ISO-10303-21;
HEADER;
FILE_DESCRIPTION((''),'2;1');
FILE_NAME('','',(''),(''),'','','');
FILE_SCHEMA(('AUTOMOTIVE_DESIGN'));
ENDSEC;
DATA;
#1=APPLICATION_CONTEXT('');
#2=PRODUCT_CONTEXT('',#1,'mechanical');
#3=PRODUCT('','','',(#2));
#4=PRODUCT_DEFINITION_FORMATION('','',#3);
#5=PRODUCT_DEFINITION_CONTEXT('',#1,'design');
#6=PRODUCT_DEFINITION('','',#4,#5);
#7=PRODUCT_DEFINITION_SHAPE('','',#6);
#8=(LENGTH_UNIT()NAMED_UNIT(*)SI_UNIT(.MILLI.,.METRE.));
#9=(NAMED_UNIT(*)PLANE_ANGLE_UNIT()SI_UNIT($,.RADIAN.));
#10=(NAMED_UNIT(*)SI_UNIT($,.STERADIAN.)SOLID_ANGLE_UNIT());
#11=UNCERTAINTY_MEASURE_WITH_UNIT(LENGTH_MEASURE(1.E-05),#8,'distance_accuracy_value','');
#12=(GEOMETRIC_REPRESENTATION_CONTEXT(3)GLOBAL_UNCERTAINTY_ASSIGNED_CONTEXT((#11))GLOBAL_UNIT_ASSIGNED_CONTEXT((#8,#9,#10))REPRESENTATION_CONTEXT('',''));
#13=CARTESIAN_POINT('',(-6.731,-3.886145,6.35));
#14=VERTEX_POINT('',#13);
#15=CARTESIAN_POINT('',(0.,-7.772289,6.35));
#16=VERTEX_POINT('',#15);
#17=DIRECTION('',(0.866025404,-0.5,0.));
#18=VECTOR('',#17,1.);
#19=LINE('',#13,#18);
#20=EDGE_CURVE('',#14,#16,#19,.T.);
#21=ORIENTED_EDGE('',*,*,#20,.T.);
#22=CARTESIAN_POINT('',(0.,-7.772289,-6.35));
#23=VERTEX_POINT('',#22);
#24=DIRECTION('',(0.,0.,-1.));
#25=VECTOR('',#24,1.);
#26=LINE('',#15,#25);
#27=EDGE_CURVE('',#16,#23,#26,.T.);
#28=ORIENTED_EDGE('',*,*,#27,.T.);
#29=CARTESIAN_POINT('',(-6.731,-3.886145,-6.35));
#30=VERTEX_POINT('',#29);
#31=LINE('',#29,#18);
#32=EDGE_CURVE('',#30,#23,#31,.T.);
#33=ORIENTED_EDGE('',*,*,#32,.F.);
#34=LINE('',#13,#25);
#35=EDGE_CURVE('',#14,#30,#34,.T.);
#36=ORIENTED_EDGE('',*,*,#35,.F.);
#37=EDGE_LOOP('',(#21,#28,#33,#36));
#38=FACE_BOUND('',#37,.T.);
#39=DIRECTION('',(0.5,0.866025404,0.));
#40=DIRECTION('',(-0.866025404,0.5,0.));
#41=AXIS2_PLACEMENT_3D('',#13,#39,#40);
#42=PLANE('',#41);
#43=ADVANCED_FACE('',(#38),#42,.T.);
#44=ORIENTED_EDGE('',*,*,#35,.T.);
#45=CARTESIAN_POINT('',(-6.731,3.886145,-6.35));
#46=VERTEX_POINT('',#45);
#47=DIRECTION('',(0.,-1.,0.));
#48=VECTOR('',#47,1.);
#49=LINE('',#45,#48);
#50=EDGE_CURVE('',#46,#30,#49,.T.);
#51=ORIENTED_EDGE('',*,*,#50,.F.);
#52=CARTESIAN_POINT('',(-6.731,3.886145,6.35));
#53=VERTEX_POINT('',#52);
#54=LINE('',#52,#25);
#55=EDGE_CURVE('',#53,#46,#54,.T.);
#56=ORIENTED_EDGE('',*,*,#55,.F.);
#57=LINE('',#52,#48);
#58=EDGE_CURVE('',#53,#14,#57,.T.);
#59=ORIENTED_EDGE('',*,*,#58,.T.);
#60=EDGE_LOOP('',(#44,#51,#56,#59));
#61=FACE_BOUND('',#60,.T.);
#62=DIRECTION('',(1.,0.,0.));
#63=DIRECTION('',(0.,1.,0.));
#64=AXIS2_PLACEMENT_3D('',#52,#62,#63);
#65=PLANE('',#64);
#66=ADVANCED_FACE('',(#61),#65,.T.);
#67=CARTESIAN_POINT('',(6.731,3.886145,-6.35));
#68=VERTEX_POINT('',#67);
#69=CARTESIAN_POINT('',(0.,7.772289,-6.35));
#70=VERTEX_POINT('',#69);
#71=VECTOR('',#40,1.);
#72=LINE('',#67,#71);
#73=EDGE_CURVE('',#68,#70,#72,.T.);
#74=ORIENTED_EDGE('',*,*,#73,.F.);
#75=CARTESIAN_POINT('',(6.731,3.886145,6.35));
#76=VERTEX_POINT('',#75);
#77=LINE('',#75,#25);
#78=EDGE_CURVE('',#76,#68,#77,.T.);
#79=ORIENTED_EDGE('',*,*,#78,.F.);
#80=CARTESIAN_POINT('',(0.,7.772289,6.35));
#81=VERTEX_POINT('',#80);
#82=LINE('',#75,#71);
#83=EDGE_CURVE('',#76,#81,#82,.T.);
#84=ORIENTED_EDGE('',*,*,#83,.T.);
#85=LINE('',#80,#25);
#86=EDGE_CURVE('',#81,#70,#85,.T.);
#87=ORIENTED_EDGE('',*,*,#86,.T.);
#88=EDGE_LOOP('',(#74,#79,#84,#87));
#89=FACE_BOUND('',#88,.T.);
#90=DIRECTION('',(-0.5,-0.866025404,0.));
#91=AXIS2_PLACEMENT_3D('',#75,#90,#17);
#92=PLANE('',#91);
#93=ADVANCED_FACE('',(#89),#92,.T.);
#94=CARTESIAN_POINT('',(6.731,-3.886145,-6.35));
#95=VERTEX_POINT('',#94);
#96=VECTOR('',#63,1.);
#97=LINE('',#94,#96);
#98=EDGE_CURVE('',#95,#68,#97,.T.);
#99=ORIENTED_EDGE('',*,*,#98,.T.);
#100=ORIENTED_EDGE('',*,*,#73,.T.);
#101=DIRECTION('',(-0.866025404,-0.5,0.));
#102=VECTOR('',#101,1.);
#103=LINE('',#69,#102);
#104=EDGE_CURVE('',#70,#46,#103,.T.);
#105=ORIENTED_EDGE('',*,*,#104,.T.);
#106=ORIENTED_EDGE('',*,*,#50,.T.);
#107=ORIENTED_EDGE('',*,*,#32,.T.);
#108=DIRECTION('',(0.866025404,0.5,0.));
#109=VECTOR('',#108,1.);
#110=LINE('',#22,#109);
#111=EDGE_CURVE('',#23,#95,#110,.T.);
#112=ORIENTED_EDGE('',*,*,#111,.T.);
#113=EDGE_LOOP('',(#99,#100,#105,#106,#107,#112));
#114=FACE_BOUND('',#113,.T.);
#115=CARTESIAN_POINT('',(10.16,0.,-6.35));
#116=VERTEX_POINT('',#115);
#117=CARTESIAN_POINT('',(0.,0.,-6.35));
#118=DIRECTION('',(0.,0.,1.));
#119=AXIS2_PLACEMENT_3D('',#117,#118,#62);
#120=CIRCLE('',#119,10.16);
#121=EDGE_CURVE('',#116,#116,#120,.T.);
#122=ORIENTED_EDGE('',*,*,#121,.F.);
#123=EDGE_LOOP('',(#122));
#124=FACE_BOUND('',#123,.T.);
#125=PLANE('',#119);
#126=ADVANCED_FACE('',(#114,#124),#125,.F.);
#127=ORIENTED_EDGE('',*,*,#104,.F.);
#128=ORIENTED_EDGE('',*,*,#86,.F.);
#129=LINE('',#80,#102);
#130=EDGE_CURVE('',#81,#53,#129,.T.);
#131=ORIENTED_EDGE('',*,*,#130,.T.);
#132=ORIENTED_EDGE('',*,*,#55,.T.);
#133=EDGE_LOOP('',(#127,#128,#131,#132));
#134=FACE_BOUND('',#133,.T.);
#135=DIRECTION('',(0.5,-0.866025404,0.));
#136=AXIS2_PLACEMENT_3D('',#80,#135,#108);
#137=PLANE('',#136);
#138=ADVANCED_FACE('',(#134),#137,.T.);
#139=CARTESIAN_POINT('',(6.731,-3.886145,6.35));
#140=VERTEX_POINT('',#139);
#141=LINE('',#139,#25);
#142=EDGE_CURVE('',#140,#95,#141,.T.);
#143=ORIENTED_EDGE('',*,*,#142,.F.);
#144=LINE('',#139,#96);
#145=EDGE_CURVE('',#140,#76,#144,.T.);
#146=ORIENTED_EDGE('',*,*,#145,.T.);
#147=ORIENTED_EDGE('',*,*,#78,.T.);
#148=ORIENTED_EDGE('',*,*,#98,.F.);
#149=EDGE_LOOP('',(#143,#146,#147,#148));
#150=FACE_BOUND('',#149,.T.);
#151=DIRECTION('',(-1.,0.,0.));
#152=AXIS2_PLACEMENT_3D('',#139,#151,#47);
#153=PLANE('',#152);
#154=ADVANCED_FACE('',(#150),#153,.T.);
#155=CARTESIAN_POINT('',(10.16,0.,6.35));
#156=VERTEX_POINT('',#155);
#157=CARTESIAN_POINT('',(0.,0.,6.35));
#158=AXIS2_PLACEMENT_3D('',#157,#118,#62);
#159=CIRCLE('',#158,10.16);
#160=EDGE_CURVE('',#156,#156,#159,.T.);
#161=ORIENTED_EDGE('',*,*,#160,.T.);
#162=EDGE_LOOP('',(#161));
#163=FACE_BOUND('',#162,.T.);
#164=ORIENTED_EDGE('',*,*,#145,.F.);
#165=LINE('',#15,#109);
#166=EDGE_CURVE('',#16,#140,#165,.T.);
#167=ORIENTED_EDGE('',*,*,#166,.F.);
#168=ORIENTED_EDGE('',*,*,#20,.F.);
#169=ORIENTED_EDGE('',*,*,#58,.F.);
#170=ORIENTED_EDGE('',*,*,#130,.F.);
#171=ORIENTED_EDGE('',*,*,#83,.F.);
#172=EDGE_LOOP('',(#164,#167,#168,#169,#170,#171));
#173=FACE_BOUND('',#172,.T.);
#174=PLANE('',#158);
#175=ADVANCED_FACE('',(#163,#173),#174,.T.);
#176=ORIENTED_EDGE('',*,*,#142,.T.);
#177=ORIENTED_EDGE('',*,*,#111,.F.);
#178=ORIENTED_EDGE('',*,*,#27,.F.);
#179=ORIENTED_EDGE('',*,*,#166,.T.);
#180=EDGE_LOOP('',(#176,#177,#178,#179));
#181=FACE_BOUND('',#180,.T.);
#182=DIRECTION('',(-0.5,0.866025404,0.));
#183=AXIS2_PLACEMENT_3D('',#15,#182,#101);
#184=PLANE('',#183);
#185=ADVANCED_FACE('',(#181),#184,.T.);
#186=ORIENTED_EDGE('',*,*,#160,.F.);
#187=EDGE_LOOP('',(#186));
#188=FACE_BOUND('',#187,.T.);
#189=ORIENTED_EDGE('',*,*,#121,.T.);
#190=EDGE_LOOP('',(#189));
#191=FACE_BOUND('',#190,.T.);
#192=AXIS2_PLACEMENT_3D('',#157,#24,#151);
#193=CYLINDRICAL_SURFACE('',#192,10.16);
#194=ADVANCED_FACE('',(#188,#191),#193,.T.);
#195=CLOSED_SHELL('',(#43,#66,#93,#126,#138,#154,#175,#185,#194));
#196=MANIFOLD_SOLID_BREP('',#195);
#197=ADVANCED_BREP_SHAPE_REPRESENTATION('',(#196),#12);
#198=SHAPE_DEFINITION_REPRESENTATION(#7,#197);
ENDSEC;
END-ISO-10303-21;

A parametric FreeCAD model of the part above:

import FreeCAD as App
import Part
import Sketcher
from FreeCAD import Vector
Q = App.Units.Quantity

doc = App.newDocument("Part")
params = doc.addObject("Spreadsheet::Sheet", "Params")
for row, (alias, value) in enumerate([
    ("sketch1_diameter", "0.8 in"),
    ("pad1_length", "0.5 in"),
], start=1):
    params.set(f"A{row}", alias)
    params.set(f"B{row}", "=" + value)
    params.setAlias(f"B{row}", alias)

body = doc.addObject("PartDesign::Body", "Body")

# Sketch on XY plane
sketch1 = body.newObject("Sketcher::SketchObject", "Sketch")
sketch1.AttachmentSupport = (doc.getObject("XY_Plane"), [""])
sketch1.MapMode = "FlatFace"
sketch1.addGeometry([
    Part.Circle(Vector(0, 0, 0), Vector(0, 0, 1), 10),  # 0
    Part.LineSegment(Vector(-7, 4, 0), Vector(0, 8, 0)),  # 1
    Part.LineSegment(Vector(0, 8, 0), Vector(7, 4, 0)),  # 2
    Part.LineSegment(Vector(7, 4, 0), Vector(7, -4, 0)),  # 3
    Part.LineSegment(Vector(7, -4, 0), Vector(0, -8, 0)),  # 4
    Part.LineSegment(Vector(0, -8, 0), Vector(-7, -4, 0)),  # 5
    Part.LineSegment(Vector(-7, -4, 0), Vector(-7, 4, 0)),  # 6
], False)
sketch1.addConstraint([
    Sketcher.Constraint("Coincident", 1, 2, 2, 1),
    Sketcher.Constraint("Coincident", 2, 2, 3, 1),
    Sketcher.Constraint("Coincident", 3, 2, 4, 1),
    Sketcher.Constraint("Coincident", 4, 2, 5, 1),
    Sketcher.Constraint("Coincident", 5, 2, 6, 1),
    Sketcher.Constraint("Coincident", 6, 2, 1, 1),
    Sketcher.Constraint("Vertical", 3),
    Sketcher.Constraint("Vertical", 6),
    Sketcher.Constraint("Coincident", 0, 3, -1, 1),
    Sketcher.Constraint("Symmetric", 1, 2, 4, 2, -1, 1),
    Sketcher.Constraint("Symmetric", 2, 2, 5, 2, -1, 1),
    Sketcher.Constraint("PointOnObject", 1, 2, -2),
    Sketcher.Constraint("Parallel", 1, 4),
    Sketcher.Constraint("Horizontal", 3, 2, 5, 2),
    Sketcher.Constraint("Diameter", 0, Q("0.8 in")),
    Sketcher.Constraint("Angle", 1, Q("30 deg")),
    Sketcher.Constraint("DistanceX", 5, 2, 3, 2, Q("0.53 in")),
    Sketcher.Constraint("DistanceY", 3, 2, 3, 1, Q("7.772289 mm")),
])
sketch1.setExpression("Constraints[14]", "Params.sketch1_diameter")
pad1 = body.newObject("PartDesign::Pad", "Pad")
pad1.Profile = sketch1
pad1.setExpression("Length", "Params.pad1_length")
pad1.Midplane = True

doc.recompute()
